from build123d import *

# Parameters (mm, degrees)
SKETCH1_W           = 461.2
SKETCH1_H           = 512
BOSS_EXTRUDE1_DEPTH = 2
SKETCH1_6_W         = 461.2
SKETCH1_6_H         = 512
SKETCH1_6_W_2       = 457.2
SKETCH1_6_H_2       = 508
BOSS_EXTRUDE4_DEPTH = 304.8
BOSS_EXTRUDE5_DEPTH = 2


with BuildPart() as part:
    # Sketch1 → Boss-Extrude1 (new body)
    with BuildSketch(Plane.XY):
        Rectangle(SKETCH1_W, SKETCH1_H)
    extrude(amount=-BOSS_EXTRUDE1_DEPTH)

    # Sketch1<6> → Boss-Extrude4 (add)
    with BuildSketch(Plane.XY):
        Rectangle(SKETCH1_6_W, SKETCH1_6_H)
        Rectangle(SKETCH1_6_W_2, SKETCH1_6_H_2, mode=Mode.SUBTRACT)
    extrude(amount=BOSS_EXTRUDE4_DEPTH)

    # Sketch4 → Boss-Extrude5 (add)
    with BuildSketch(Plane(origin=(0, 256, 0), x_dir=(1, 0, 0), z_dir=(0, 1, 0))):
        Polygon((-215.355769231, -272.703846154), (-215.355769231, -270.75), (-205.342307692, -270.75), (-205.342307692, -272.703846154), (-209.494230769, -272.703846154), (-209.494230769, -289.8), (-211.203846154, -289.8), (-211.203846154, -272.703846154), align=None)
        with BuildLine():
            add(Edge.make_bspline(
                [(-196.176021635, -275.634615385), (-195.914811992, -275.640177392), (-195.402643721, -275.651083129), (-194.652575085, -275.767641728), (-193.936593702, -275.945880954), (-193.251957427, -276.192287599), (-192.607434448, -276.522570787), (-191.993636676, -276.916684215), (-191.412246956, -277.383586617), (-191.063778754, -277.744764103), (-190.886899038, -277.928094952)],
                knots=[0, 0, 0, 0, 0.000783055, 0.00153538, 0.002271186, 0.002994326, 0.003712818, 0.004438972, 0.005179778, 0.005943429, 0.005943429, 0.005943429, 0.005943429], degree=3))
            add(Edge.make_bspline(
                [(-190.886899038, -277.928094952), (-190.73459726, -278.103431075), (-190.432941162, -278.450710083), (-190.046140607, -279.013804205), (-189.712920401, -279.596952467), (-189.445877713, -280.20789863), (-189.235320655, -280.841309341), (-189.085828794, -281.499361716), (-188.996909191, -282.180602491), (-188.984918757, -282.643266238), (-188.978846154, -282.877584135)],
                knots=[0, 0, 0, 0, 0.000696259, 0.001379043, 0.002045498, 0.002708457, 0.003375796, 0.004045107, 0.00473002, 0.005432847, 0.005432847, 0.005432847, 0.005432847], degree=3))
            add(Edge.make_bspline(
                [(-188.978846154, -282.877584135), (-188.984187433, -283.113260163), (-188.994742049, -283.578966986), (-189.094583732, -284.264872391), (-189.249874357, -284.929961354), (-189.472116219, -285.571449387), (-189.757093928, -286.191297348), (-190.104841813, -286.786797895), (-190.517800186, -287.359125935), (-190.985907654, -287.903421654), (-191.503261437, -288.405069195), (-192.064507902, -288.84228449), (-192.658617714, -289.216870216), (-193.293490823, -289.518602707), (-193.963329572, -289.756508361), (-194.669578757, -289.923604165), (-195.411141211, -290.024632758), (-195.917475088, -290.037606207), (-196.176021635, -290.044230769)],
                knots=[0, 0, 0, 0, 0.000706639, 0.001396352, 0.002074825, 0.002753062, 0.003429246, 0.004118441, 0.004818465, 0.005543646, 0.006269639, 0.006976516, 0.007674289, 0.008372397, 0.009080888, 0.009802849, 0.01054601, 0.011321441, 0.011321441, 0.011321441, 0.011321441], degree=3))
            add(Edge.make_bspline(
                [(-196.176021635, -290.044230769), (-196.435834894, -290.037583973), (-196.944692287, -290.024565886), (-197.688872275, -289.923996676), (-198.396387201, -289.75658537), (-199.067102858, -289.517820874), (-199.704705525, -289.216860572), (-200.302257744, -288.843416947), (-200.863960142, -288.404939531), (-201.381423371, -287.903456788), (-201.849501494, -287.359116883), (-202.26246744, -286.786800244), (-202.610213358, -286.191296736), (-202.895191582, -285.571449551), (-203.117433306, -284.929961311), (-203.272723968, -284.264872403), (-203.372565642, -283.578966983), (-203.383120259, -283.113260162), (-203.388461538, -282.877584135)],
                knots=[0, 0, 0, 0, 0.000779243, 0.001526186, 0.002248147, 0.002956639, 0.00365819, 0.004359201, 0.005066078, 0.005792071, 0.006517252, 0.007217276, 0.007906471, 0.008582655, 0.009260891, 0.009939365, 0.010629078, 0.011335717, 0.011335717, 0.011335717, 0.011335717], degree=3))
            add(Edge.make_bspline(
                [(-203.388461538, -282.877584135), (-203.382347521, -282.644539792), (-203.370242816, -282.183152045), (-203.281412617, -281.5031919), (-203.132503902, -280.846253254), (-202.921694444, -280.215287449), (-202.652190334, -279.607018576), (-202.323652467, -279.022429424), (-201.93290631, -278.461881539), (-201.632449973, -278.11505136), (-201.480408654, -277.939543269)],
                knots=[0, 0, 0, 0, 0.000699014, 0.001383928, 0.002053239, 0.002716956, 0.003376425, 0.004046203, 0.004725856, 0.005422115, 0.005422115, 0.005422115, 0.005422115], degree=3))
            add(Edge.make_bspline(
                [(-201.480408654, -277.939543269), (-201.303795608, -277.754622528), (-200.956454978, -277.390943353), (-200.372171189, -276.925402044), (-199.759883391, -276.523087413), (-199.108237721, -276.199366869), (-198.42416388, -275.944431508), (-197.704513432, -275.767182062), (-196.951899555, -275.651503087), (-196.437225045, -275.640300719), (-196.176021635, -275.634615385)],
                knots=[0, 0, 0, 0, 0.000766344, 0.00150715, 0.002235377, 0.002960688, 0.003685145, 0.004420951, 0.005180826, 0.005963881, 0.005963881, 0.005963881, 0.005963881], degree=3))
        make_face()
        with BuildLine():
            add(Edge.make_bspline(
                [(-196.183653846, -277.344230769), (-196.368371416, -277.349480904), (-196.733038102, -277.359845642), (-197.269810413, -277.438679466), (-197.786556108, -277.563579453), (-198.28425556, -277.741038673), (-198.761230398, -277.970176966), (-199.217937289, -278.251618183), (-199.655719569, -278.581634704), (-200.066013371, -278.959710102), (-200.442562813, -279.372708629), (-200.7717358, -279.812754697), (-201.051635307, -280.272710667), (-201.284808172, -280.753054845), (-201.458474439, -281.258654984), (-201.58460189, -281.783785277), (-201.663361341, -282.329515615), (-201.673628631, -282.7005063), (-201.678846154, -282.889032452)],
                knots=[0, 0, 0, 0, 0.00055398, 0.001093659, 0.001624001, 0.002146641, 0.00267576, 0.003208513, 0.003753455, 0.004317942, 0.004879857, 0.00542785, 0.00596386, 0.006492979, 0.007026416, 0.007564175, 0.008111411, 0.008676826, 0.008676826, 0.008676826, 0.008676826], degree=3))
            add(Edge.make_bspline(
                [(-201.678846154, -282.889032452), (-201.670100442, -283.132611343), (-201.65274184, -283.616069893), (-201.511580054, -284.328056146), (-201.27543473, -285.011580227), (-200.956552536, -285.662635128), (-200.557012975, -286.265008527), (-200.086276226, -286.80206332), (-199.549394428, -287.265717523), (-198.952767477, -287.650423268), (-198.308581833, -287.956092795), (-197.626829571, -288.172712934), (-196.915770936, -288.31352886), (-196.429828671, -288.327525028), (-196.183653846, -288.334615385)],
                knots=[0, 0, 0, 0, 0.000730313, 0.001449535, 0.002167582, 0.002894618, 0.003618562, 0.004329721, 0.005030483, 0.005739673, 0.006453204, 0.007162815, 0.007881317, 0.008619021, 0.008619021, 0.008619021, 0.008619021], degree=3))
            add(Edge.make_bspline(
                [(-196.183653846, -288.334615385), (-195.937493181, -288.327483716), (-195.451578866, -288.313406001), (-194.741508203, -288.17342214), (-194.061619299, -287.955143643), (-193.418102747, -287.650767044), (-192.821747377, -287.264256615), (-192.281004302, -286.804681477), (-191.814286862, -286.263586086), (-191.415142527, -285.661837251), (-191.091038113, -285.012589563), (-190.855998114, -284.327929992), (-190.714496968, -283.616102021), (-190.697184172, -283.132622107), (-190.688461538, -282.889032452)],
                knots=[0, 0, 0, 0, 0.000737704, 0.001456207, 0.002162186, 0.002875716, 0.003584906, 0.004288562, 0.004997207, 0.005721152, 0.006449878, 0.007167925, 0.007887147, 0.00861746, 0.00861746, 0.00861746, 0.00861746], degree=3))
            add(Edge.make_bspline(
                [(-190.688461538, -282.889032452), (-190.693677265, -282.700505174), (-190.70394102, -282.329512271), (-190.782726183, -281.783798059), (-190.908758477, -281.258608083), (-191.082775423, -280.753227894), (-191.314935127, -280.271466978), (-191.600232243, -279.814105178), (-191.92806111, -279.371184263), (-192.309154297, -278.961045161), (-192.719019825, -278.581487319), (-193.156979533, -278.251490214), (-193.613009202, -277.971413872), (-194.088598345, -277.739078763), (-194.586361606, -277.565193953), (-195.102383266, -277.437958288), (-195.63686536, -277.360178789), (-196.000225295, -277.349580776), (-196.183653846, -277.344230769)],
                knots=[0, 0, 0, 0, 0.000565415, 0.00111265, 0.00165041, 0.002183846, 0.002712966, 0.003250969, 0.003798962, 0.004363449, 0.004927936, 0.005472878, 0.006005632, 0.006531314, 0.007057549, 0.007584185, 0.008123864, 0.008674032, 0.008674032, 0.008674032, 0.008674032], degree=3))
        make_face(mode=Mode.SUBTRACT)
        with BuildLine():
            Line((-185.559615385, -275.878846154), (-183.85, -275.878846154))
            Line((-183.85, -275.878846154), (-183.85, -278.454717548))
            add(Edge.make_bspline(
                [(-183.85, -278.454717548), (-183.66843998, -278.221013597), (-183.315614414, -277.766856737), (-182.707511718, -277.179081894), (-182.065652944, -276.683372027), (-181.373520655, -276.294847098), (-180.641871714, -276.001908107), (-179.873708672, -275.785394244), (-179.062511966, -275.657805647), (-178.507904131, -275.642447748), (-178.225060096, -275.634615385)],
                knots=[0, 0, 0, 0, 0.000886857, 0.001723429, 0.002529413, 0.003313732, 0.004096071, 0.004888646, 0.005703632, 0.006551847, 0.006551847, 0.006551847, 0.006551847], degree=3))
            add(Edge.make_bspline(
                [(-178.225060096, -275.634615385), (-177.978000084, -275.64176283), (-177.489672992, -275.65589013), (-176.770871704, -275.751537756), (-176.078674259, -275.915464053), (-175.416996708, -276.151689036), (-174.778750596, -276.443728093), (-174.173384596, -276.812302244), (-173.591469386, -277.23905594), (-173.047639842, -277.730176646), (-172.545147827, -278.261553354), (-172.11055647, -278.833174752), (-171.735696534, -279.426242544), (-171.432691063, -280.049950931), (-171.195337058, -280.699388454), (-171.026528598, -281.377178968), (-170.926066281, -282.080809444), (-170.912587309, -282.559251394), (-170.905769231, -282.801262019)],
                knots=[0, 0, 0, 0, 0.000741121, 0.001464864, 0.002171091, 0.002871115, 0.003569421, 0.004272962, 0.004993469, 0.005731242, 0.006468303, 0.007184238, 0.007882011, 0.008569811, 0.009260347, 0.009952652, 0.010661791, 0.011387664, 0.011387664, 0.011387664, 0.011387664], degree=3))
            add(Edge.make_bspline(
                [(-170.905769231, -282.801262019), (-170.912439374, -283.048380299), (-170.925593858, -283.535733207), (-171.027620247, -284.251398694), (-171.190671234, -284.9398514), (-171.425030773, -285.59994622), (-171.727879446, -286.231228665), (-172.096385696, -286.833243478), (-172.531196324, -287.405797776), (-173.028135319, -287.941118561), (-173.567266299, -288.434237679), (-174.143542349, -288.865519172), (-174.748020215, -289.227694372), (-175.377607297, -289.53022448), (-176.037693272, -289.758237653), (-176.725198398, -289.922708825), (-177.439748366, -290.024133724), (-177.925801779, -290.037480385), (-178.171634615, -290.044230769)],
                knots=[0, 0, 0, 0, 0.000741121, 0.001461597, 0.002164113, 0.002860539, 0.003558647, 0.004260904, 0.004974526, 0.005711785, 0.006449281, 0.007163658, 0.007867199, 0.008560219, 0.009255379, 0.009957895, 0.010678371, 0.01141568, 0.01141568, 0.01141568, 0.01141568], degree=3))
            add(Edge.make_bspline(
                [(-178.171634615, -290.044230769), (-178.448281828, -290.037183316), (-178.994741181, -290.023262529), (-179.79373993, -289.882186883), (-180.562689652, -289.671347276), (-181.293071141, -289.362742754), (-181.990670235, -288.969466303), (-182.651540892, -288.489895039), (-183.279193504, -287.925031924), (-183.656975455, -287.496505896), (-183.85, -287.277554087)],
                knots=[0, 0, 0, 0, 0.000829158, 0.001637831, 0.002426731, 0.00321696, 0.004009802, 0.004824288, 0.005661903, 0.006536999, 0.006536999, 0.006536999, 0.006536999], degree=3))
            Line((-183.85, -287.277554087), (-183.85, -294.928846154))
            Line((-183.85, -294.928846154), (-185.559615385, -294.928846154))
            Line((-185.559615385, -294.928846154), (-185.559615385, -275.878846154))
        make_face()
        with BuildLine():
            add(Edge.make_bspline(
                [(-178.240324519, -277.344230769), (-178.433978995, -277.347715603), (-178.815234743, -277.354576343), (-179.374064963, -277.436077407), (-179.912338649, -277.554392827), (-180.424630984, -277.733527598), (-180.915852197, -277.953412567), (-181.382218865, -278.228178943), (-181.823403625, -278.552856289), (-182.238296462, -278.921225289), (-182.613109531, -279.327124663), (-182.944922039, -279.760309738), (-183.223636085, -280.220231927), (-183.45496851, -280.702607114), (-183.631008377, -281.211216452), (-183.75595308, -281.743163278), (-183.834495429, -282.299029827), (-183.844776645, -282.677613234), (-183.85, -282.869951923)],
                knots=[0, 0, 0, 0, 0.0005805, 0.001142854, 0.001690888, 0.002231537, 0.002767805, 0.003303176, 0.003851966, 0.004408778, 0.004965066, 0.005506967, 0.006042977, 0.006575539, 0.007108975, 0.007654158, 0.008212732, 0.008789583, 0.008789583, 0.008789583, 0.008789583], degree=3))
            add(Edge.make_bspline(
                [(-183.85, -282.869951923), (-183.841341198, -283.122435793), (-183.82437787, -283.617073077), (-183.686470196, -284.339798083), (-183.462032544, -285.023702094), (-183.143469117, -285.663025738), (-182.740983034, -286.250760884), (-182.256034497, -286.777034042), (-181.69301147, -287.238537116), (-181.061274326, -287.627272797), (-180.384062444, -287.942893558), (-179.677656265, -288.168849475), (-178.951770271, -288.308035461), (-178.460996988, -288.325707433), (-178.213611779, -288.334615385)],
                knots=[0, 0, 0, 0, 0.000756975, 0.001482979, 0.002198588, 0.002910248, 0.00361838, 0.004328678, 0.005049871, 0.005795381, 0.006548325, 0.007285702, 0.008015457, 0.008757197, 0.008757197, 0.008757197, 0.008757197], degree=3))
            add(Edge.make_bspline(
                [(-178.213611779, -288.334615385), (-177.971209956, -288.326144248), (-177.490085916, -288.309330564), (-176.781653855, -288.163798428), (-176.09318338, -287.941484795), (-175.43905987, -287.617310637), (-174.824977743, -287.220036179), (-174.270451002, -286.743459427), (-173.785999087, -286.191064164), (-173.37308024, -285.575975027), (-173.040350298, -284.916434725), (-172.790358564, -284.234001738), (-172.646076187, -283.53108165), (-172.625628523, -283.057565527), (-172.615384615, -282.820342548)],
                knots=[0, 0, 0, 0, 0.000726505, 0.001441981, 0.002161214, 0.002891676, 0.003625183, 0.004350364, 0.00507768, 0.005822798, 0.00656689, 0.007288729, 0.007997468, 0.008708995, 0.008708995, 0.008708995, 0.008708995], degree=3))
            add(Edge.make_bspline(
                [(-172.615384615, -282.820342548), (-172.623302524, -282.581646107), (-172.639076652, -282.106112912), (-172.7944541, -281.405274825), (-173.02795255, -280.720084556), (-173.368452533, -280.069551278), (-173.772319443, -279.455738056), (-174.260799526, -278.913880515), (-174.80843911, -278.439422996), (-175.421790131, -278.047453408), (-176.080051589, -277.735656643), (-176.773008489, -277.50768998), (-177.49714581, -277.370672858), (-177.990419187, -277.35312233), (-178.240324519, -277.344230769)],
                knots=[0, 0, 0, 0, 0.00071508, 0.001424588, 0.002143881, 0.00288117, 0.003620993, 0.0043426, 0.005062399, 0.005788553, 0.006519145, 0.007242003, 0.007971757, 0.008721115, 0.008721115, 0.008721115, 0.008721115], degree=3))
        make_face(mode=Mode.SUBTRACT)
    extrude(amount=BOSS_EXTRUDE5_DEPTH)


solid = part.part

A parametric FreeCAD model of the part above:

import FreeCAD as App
import Part
import Sketcher
Q = App.Units.Quantity


def add_polygon(sketch, points):
    """Adds a closed chain of lines whose ends are joined by coincident constraints."""
    first, n = sketch.GeometryCount, len(points)
    for a, b in zip(points, points[1:] + points[:1]):
        sketch.addGeometry(Part.LineSegment(App.Vector(*a, 0), App.Vector(*b, 0)), False)
    for i in range(n):
        sketch.addConstraint(Sketcher.Constraint("Coincident", first + i, 2, first + (i + 1) % n, 1))

doc = App.newDocument("Part")
body = doc.addObject("PartDesign::Body", "Body")

# Sketch on XY plane
sketch1 = body.newObject("Sketcher::SketchObject", "Sketch")
sketch1.AttachmentSupport = (doc.getObject("XY_Plane"), [""])
sketch1.MapMode = "FlatFace"
add_polygon(sketch1, [(-231, 256), (-231, -256), (231, -256), (231, 256)])  # lines 0-3
sketch1.addConstraint(Sketcher.Constraint("Vertical", 0))
sketch1.addConstraint(Sketcher.Constraint("Horizontal", 1))
sketch1.addConstraint(Sketcher.Constraint("Vertical", 2))
sketch1.addConstraint(Sketcher.Constraint("Horizontal", 3))
sketch1.addConstraint(Sketcher.Constraint("Symmetric", 0, 2, 2, 2, -1, 1))
sketch1.addConstraint(Sketcher.Constraint("DistanceX", 1, 1, 1, 2, 461.2))
sketch1.addConstraint(Sketcher.Constraint("DistanceY", 0, 2, 0, 1, 512.0))
pad1 = body.newObject("PartDesign::Pad", "Pad")
pad1.Profile = sketch1
pad1.Length = 2
pad1.Reversed = True

# Sketch on XY plane
sketch2 = body.newObject("Sketcher::SketchObject", "Sketch001")
sketch2.AttachmentSupport = (doc.getObject("XY_Plane"), [""])
sketch2.MapMode = "FlatFace"
add_polygon(sketch2, [(-231, 256), (-231, -256), (231, -256), (231, 256)])  # lines 0-3
add_polygon(sketch2, [(229, -254), (-229, -254), (-229, 254), (229, 254)])  # lines 4-7
sketch2.addConstraint(Sketcher.Constraint("Vertical", 0))
sketch2.addConstraint(Sketcher.Constraint("Horizontal", 1))
sketch2.addConstraint(Sketcher.Constraint("Vertical", 2))
sketch2.addConstraint(Sketcher.Constraint("Horizontal", 3))
sketch2.addConstraint(Sketcher.Constraint("Horizontal", 4))
sketch2.addConstraint(Sketcher.Constraint("Vertical", 5))
sketch2.addConstraint(Sketcher.Constraint("Horizontal", 6))
sketch2.addConstraint(Sketcher.Constraint("Vertical", 7))
sketch2.addConstraint(Sketcher.Constraint("Symmetric", 0, 2, 2, 2, -1, 1))
sketch2.addConstraint(Sketcher.Constraint("Symmetric", 4, 2, 6, 2, -1, 1))
sketch2.addConstraint(Sketcher.Constraint("DistanceX", 4, 2, 4, 1, Q("18 in")))
sketch2.addConstraint(Sketcher.Constraint("DistanceY", 5, 1, 5, 2, Q("20 in")))
sketch2.addConstraint(Sketcher.Constraint("DistanceX", 1, 1, 1, 2, 461.2))
sketch2.addConstraint(Sketcher.Constraint("DistanceY", 0, 2, 0, 1, 512.0))
pad2 = body.newObject("PartDesign::Pad", "Pad001")
pad2.Profile = sketch2
pad2.Length = Q("12 in")

# Sketch on XZ plane
sketch3 = body.newObject("Sketcher::SketchObject", "Sketch002")
sketch3.AttachmentSupport = (doc.getObject("XZ_Plane"), [""])
sketch3.MapMode = "FlatFace"
sketch3.AttachmentOffset = App.Placement(App.Vector(0, 0, -256), App.Rotation())
add_polygon(sketch3, [(-215.355769, 270.75), (-215.355769, 272.703846), (-211.203846, 272.703846), (-211.203846, 289.8), (-209.494231, 289.8), (-209.494231, 272.703846), (-205.342308, 272.703846), (-205.342308, 270.75)])  # lines 0-7
sketch3.addGeometry(Part.BSplineCurve([App.Vector(-196.176022, 275.634615, 0), App.Vector(-195.914812, 275.640177, 0), App.Vector(-195.402644, 275.651083, 0), App.Vector(-194.652575, 275.767642, 0), App.Vector(-193.936594, 275.945881, 0), App.Vector(-193.251957, 276.192288, 0), App.Vector(-192.607434, 276.522571, 0), App.Vector(-191.993637, 276.916684, 0), App.Vector(-191.412247, 277.383587, 0), App.Vector(-191.063779, 277.744764, 0), App.Vector(-190.886899, 277.928095, 0)], [4, 1, 1, 1, 1, 1, 1, 1, 4], [0, 0.000783055, 0.00153538, 0.002271186, 0.002994326, 0.003712818, 0.004438972, 0.005179778, 0.005943429], False, 3, [1, 1, 1, 1, 1, 1, 1, 1, 1, 1, 1], False), False)  # 8
sketch3.addGeometry(Part.BSplineCurve([App.Vector(-201.480409, 277.939543, 0), App.Vector(-201.303796, 277.754623, 0), App.Vector(-200.956455, 277.390943, 0), App.Vector(-200.372171, 276.925402, 0), App.Vector(-199.759883, 276.523087, 0), App.Vector(-199.108238, 276.199367, 0), App.Vector(-198.424164, 275.944432, 0), App.Vector(-197.704513, 275.767182, 0), App.Vector(-196.9519, 275.651503, 0), App.Vector(-196.437225, 275.640301, 0), App.Vector(-196.176022, 275.634615, 0)], [4, 1, 1, 1, 1, 1, 1, 1, 4], [0, 0.000766344, 0.00150715, 0.002235377, 0.002960688, 0.003685145, 0.004420951, 0.005180826, 0.005963881], False, 3, [1, 1, 1, 1, 1, 1, 1, 1, 1, 1, 1], False), False)  # 9
sketch3.addGeometry(Part.BSplineCurve([App.Vector(-203.388462, 282.877584, 0), App.Vector(-203.382348, 282.64454, 0), App.Vector(-203.370243, 282.183152, 0), App.Vector(-203.281413, 281.503192, 0), App.Vector(-203.132504, 280.846253, 0), App.Vector(-202.921694, 280.215287, 0), App.Vector(-202.65219, 279.607019, 0), App.Vector(-202.323652, 279.022429, 0), App.Vector(-201.932906, 278.461882, 0), App.Vector(-201.63245, 278.115051, 0), App.Vector(-201.480409, 277.939543, 0)], [4, 1, 1, 1, 1, 1, 1, 1, 4], [0, 0.000699014, 0.001383928, 0.002053239, 0.002716956, 0.003376425, 0.004046203, 0.004725856, 0.005422115], False, 3, [1, 1, 1, 1, 1, 1, 1, 1, 1, 1, 1], False), False)  # 10
sketch3.addGeometry(Part.BSplineCurve([App.Vector(-196.176022, 290.044231, 0), App.Vector(-196.435835, 290.037584, 0), App.Vector(-196.944692, 290.024566, 0), App.Vector(-197.688872, 289.923997, 0), App.Vector(-198.396387, 289.756585, 0), App.Vector(-199.067103, 289.517821, 0), App.Vector(-199.704706, 289.216861, 0), App.Vector(-200.302258, 288.843417, 0), App.Vector(-200.86396, 288.40494, 0), App.Vector(-201.381423, 287.903457, 0), App.Vector(-201.849501, 287.359117, 0), App.Vector(-202.262467, 286.7868, 0), App.Vector(-202.610213, 286.191297, 0), App.Vector(-202.895192, 285.57145, 0), App.Vector(-203.117433, 284.929961, 0), App.Vector(-203.272724, 284.264872, 0), App.Vector(-203.372566, 283.578967, 0), App.Vector(-203.38312, 283.11326, 0), App.Vector(-203.388462, 282.877584, 0)], [4, 1, 1, 1, 1, 1, 1, 1, 1, 1, 1, 1, 1, 1, 1, 1, 4], [0, 0.000779243, 0.001526186, 0.002248147, 0.002956639, 0.00365819, 0.004359201, 0.005066078, 0.005792071, 0.006517252, 0.007217276, 0.007906471, 0.008582655, 0.009260891, 0.009939365, 0.010629078, 0.011335717], False, 3, [1, 1, 1, 1, 1, 1, 1, 1, 1, 1, 1, 1, 1, 1, 1, 1, 1, 1, 1], False), False)  # 11
sketch3.addGeometry(Part.BSplineCurve([App.Vector(-188.978846, 282.877584, 0), App.Vector(-188.984187, 283.11326, 0), App.Vector(-188.994742, 283.578967, 0), App.Vector(-189.094584, 284.264872, 0), App.Vector(-189.249874, 284.929961, 0), App.Vector(-189.472116, 285.571449, 0), App.Vector(-189.757094, 286.191297, 0), App.Vector(-190.104842, 286.786798, 0), App.Vector(-190.5178, 287.359126, 0), App.Vector(-190.985908, 287.903422, 0), App.Vector(-191.503261, 288.405069, 0), App.Vector(-192.064508, 288.842284, 0), App.Vector(-192.658618, 289.21687, 0), App.Vector(-193.293491, 289.518603, 0), App.Vector(-193.96333, 289.756508, 0), App.Vector(-194.669579, 289.923604, 0), App.Vector(-195.411141, 290.024633, 0), App.Vector(-195.917475, 290.037606, 0), App.Vector(-196.176022, 290.044231, 0)], [4, 1, 1, 1, 1, 1, 1, 1, 1, 1, 1, 1, 1, 1, 1, 1, 4], [0, 0.000706639, 0.001396352, 0.002074825, 0.002753062, 0.003429246, 0.004118441, 0.004818465, 0.005543646, 0.006269639, 0.006976516, 0.007674289, 0.008372397, 0.009080888, 0.009802849, 0.01054601, 0.011321441], False, 3, [1, 1, 1, 1, 1, 1, 1, 1, 1, 1, 1, 1, 1, 1, 1, 1, 1, 1, 1], False), False)  # 12
sketch3.addGeometry(Part.BSplineCurve([App.Vector(-190.886899, 277.928095, 0), App.Vector(-190.734597, 278.103431, 0), App.Vector(-190.432941, 278.45071, 0), App.Vector(-190.046141, 279.013804, 0), App.Vector(-189.71292, 279.596952, 0), App.Vector(-189.445878, 280.207899, 0), App.Vector(-189.235321, 280.841309, 0), App.Vector(-189.085829, 281.499362, 0), App.Vector(-188.996909, 282.180602, 0), App.Vector(-188.984919, 282.643266, 0), App.Vector(-188.978846, 282.877584, 0)], [4, 1, 1, 1, 1, 1, 1, 1, 4], [0, 0.000696259, 0.001379043, 0.002045498, 0.002708457, 0.003375796, 0.004045107, 0.00473002, 0.005432847], False, 3, [1, 1, 1, 1, 1, 1, 1, 1, 1, 1, 1], False), False)  # 13
sketch3.addGeometry(Part.BSplineCurve([App.Vector(-190.688462, 282.889032, 0), App.Vector(-190.693677, 282.700505, 0), App.Vector(-190.703941, 282.329512, 0), App.Vector(-190.782726, 281.783798, 0), App.Vector(-190.908758, 281.258608, 0), App.Vector(-191.082775, 280.753228, 0), App.Vector(-191.314935, 280.271467, 0), App.Vector(-191.600232, 279.814105, 0), App.Vector(-191.928061, 279.371184, 0), App.Vector(-192.309154, 278.961045, 0), App.Vector(-192.71902, 278.581487, 0), App.Vector(-193.15698, 278.25149, 0), App.Vector(-193.613009, 277.971414, 0), App.Vector(-194.088598, 277.739079, 0), App.Vector(-194.586362, 277.565194, 0), App.Vector(-195.102383, 277.437958, 0), App.Vector(-195.636865, 277.360179, 0), App.Vector(-196.000225, 277.349581, 0), App.Vector(-196.183654, 277.344231, 0)], [4, 1, 1, 1, 1, 1, 1, 1, 1, 1, 1, 1, 1, 1, 1, 1, 4], [0, 0.000565415, 0.00111265, 0.00165041, 0.002183846, 0.002712966, 0.003250969, 0.003798962, 0.004363449, 0.004927936, 0.005472878, 0.006005632, 0.006531314, 0.007057549, 0.007584185, 0.008123864, 0.008674032], False, 3, [1, 1, 1, 1, 1, 1, 1, 1, 1, 1, 1, 1, 1, 1, 1, 1, 1, 1, 1], False), False)  # 14
sketch3.addGeometry(Part.BSplineCurve([App.Vector(-196.183654, 288.334615, 0), App.Vector(-195.937493, 288.327484, 0), App.Vector(-195.451579, 288.313406, 0), App.Vector(-194.741508, 288.173422, 0), App.Vector(-194.061619, 287.955144, 0), App.Vector(-193.418103, 287.650767, 0), App.Vector(-192.821747, 287.264257, 0), App.Vector(-192.281004, 286.804681, 0), App.Vector(-191.814287, 286.263586, 0), App.Vector(-191.415143, 285.661837, 0), App.Vector(-191.091038, 285.01259, 0), App.Vector(-190.855998, 284.32793, 0), App.Vector(-190.714497, 283.616102, 0), App.Vector(-190.697184, 283.132622, 0), App.Vector(-190.688462, 282.889032, 0)], [4, 1, 1, 1, 1, 1, 1, 1, 1, 1, 1, 1, 4], [0, 0.000737704, 0.001456207, 0.002162186, 0.002875716, 0.003584906, 0.004288562, 0.004997207, 0.005721152, 0.006449878, 0.007167925, 0.007887147, 0.00861746], False, 3, [1, 1, 1, 1, 1, 1, 1, 1, 1, 1, 1, 1, 1, 1, 1], False), False)  # 15
sketch3.addGeometry(Part.BSplineCurve([App.Vector(-201.678846, 282.889032, 0), App.Vector(-201.6701, 283.132611, 0), App.Vector(-201.652742, 283.61607, 0), App.Vector(-201.51158, 284.328056, 0), App.Vector(-201.275435, 285.01158, 0), App.Vector(-200.956553, 285.662635, 0), App.Vector(-200.557013, 286.265009, 0), App.Vector(-200.086276, 286.802063, 0), App.Vector(-199.549394, 287.265718, 0), App.Vector(-198.952767, 287.650423, 0), App.Vector(-198.308582, 287.956093, 0), App.Vector(-197.62683, 288.172713, 0), App.Vector(-196.915771, 288.313529, 0), App.Vector(-196.429829, 288.327525, 0), App.Vector(-196.183654, 288.334615, 0)], [4, 1, 1, 1, 1, 1, 1, 1, 1, 1, 1, 1, 4], [0, 0.000730313, 0.001449535, 0.002167582, 0.002894618, 0.003618562, 0.004329721, 0.005030483, 0.005739673, 0.006453204, 0.007162815, 0.007881317, 0.008619021], False, 3, [1, 1, 1, 1, 1, 1, 1, 1, 1, 1, 1, 1, 1, 1, 1], False), False)  # 16
sketch3.addGeometry(Part.BSplineCurve([App.Vector(-196.183654, 277.344231, 0), App.Vector(-196.368371, 277.349481, 0), App.Vector(-196.733038, 277.359846, 0), App.Vector(-197.26981, 277.438679, 0), App.Vector(-197.786556, 277.563579, 0), App.Vector(-198.284256, 277.741039, 0), App.Vector(-198.76123, 277.970177, 0), App.Vector(-199.217937, 278.251618, 0), App.Vector(-199.65572, 278.581635, 0), App.Vector(-200.066013, 278.95971, 0), App.Vector(-200.442563, 279.372709, 0), App.Vector(-200.771736, 279.812755, 0), App.Vector(-201.051635, 280.272711, 0), App.Vector(-201.284808, 280.753055, 0), App.Vector(-201.458474, 281.258655, 0), App.Vector(-201.584602, 281.783785, 0), App.Vector(-201.663361, 282.329516, 0), App.Vector(-201.673629, 282.700506, 0), App.Vector(-201.678846, 282.889032, 0)], [4, 1, 1, 1, 1, 1, 1, 1, 1, 1, 1, 1, 1, 1, 1, 1, 4], [0, 0.00055398, 0.001093659, 0.001624001, 0.002146641, 0.00267576, 0.003208513, 0.003753455, 0.004317942, 0.004879857, 0.00542785, 0.00596386, 0.006492979, 0.007026416, 0.007564175, 0.008111411, 0.008676826], False, 3, [1, 1, 1, 1, 1, 1, 1, 1, 1, 1, 1, 1, 1, 1, 1, 1, 1, 1, 1], False), False)  # 17
sketch3.addGeometry(Part.LineSegment(App.Vector(-183.85, 275.878846, 0), App.Vector(-185.559615, 275.878846, 0)), False)  # 18
sketch3.addGeometry(Part.LineSegment(App.Vector(-185.559615, 275.878846, 0), App.Vector(-185.559615, 294.928846, 0)), False)  # 19
sketch3.addGeometry(Part.LineSegment(App.Vector(-185.559615, 294.928846, 0), App.Vector(-183.85, 294.928846, 0)), False)  # 20
sketch3.addGeometry(Part.LineSegment(App.Vector(-183.85, 294.928846, 0), App.Vector(-183.85, 287.277554, 0)), False)  # 21
sketch3.addGeometry(Part.BSplineCurve([App.Vector(-178.171635, 290.044231, 0), App.Vector(-178.448282, 290.037183, 0), App.Vector(-178.994741, 290.023263, 0), App.Vector(-179.79374, 289.882187, 0), App.Vector(-180.56269, 289.671347, 0), App.Vector(-181.293071, 289.362743, 0), App.Vector(-181.99067, 288.969466, 0), App.Vector(-182.651541, 288.489895, 0), App.Vector(-183.279194, 287.925032, 0), App.Vector(-183.656975, 287.496506, 0), App.Vector(-183.85, 287.277554, 0)], [4, 1, 1, 1, 1, 1, 1, 1, 4], [0, 0.000829158, 0.001637831, 0.002426731, 0.00321696, 0.004009802, 0.004824288, 0.005661903, 0.006536999], False, 3, [1, 1, 1, 1, 1, 1, 1, 1, 1, 1, 1], False), False)  # 22
sketch3.addGeometry(Part.BSplineCurve([App.Vector(-170.905769, 282.801262, 0), App.Vector(-170.912439, 283.04838, 0), App.Vector(-170.925594, 283.535733, 0), App.Vector(-171.02762, 284.251399, 0), App.Vector(-171.190671, 284.939851, 0), App.Vector(-171.425031, 285.599946, 0), App.Vector(-171.727879, 286.231229, 0), App.Vector(-172.096386, 286.833243, 0), App.Vector(-172.531196, 287.405798, 0), App.Vector(-173.028135, 287.941119, 0), App.Vector(-173.567266, 288.434238, 0), App.Vector(-174.143542, 288.865519, 0), App.Vector(-174.74802, 289.227694, 0), App.Vector(-175.377607, 289.530224, 0), App.Vector(-176.037693, 289.758238, 0), App.Vector(-176.725198, 289.922709, 0), App.Vector(-177.439748, 290.024134, 0), App.Vector(-177.925802, 290.03748, 0), App.Vector(-178.171635, 290.044231, 0)], [4, 1, 1, 1, 1, 1, 1, 1, 1, 1, 1, 1, 1, 1, 1, 1, 4], [0, 0.000741121, 0.001461597, 0.002164113, 0.002860539, 0.003558647, 0.004260904, 0.004974526, 0.005711785, 0.006449281, 0.007163658, 0.007867199, 0.008560219, 0.009255379, 0.009957895, 0.010678371, 0.01141568], False, 3, [1, 1, 1, 1, 1, 1, 1, 1, 1, 1, 1, 1, 1, 1, 1, 1, 1, 1, 1], False), False)  # 23
sketch3.addGeometry(Part.BSplineCurve([App.Vector(-178.22506, 275.634615, 0), App.Vector(-177.978, 275.641763, 0), App.Vector(-177.489673, 275.65589, 0), App.Vector(-176.770872, 275.751538, 0), App.Vector(-176.078674, 275.915464, 0), App.Vector(-175.416997, 276.151689, 0), App.Vector(-174.778751, 276.443728, 0), App.Vector(-174.173385, 276.812302, 0), App.Vector(-173.591469, 277.239056, 0), App.Vector(-173.04764, 277.730177, 0), App.Vector(-172.545148, 278.261553, 0), App.Vector(-172.110556, 278.833175, 0), App.Vector(-171.735697, 279.426243, 0), App.Vector(-171.432691, 280.049951, 0), App.Vector(-171.195337, 280.699388, 0), App.Vector(-171.026529, 281.377179, 0), App.Vector(-170.926066, 282.080809, 0), App.Vector(-170.912587, 282.559251, 0), App.Vector(-170.905769, 282.801262, 0)], [4, 1, 1, 1, 1, 1, 1, 1, 1, 1, 1, 1, 1, 1, 1, 1, 4], [0, 0.000741121, 0.001464864, 0.002171091, 0.002871115, 0.003569421, 0.004272962, 0.004993469, 0.005731242, 0.006468303, 0.007184238, 0.007882011, 0.008569811, 0.009260347, 0.009952652, 0.010661791, 0.011387664], False, 3, [1, 1, 1, 1, 1, 1, 1, 1, 1, 1, 1, 1, 1, 1, 1, 1, 1, 1, 1], False), False)  # 24
sketch3.addGeometry(Part.BSplineCurve([App.Vector(-183.85, 278.454718, 0), App.Vector(-183.66844, 278.221014, 0), App.Vector(-183.315614, 277.766857, 0), App.Vector(-182.707512, 277.179082, 0), App.Vector(-182.065653, 276.683372, 0), App.Vector(-181.373521, 276.294847, 0), App.Vector(-180.641872, 276.001908, 0), App.Vector(-179.873709, 275.785394, 0), App.Vector(-179.062512, 275.657806, 0), App.Vector(-178.507904, 275.642448, 0), App.Vector(-178.22506, 275.634615, 0)], [4, 1, 1, 1, 1, 1, 1, 1, 4], [0, 0.000886857, 0.001723429, 0.002529413, 0.003313732, 0.004096071, 0.004888646, 0.005703632, 0.006551847], False, 3, [1, 1, 1, 1, 1, 1, 1, 1, 1, 1, 1], False), False)  # 25
sketch3.addGeometry(Part.LineSegment(App.Vector(-183.85, 278.454718, 0), App.Vector(-183.85, 275.878846, 0)), False)  # 26
sketch3.addGeometry(Part.BSplineCurve([App.Vector(-172.615385, 282.820343, 0), App.Vector(-172.623303, 282.581646, 0), App.Vector(-172.639077, 282.106113, 0), App.Vector(-172.794454, 281.405275, 0), App.Vector(-173.027953, 280.720085, 0), App.Vector(-173.368453, 280.069551, 0), App.Vector(-173.772319, 279.455738, 0), App.Vector(-174.2608, 278.913881, 0), App.Vector(-174.808439, 278.439423, 0), App.Vector(-175.42179, 278.047453, 0), App.Vector(-176.080052, 277.735657, 0), App.Vector(-176.773008, 277.50769, 0), App.Vector(-177.497146, 277.370673, 0), App.Vector(-177.990419, 277.353122, 0), App.Vector(-178.240325, 277.344231, 0)], [4, 1, 1, 1, 1, 1, 1, 1, 1, 1, 1, 1, 4], [0, 0.00071508, 0.001424588, 0.002143881, 0.00288117, 0.003620993, 0.0043426, 0.005062399, 0.005788553, 0.006519145, 0.007242003, 0.007971757, 0.008721115], False, 3, [1, 1, 1, 1, 1, 1, 1, 1, 1, 1, 1, 1, 1, 1, 1], False), False)  # 27
sketch3.addGeometry(Part.BSplineCurve([App.Vector(-178.213612, 288.334615, 0), App.Vector(-177.97121, 288.326144, 0), App.Vector(-177.490086, 288.309331, 0), App.Vector(-176.781654, 288.163798, 0), App.Vector(-176.093183, 287.941485, 0), App.Vector(-175.43906, 287.617311, 0), App.Vector(-174.824978, 287.220036, 0), App.Vector(-174.270451, 286.743459, 0), App.Vector(-173.785999, 286.191064, 0), App.Vector(-173.37308, 285.575975, 0), App.Vector(-173.04035, 284.916435, 0), App.Vector(-172.790359, 284.234002, 0), App.Vector(-172.646076, 283.531082, 0), App.Vector(-172.625629, 283.057566, 0), App.Vector(-172.615385, 282.820343, 0)], [4, 1, 1, 1, 1, 1, 1, 1, 1, 1, 1, 1, 4], [0, 0.000726505, 0.001441981, 0.002161214, 0.002891676, 0.003625183, 0.004350364, 0.00507768, 0.005822798, 0.00656689, 0.007288729, 0.007997468, 0.008708995], False, 3, [1, 1, 1, 1, 1, 1, 1, 1, 1, 1, 1, 1, 1, 1, 1], False), False)  # 28
sketch3.addGeometry(Part.BSplineCurve([App.Vector(-183.85, 282.869952, 0), App.Vector(-183.841341, 283.122436, 0), App.Vector(-183.824378, 283.617073, 0), App.Vector(-183.68647, 284.339798, 0), App.Vector(-183.462033, 285.023702, 0), App.Vector(-183.143469, 285.663026, 0), App.Vector(-182.740983, 286.250761, 0), App.Vector(-182.256034, 286.777034, 0), App.Vector(-181.693011, 287.238537, 0), App.Vector(-181.061274, 287.627273, 0), App.Vector(-180.384062, 287.942894, 0), App.Vector(-179.677656, 288.168849, 0), App.Vector(-178.95177, 288.308035, 0), App.Vector(-178.460997, 288.325707, 0), App.Vector(-178.213612, 288.334615, 0)], [4, 1, 1, 1, 1, 1, 1, 1, 1, 1, 1, 1, 4], [0, 0.000756975, 0.001482979, 0.002198588, 0.002910248, 0.00361838, 0.004328678, 0.005049871, 0.005795381, 0.006548325, 0.007285702, 0.008015457, 0.008757197], False, 3, [1, 1, 1, 1, 1, 1, 1, 1, 1, 1, 1, 1, 1, 1, 1], False), False)  # 29
sketch3.addGeometry(Part.BSplineCurve([App.Vector(-178.240325, 277.344231, 0), App.Vector(-178.433979, 277.347716, 0), App.Vector(-178.815235, 277.354576, 0), App.Vector(-179.374065, 277.436077, 0), App.Vector(-179.912339, 277.554393, 0), App.Vector(-180.424631, 277.733528, 0), App.Vector(-180.915852, 277.953413, 0), App.Vector(-181.382219, 278.228179, 0), App.Vector(-181.823404, 278.552856, 0), App.Vector(-182.238296, 278.921225, 0), App.Vector(-182.61311, 279.327125, 0), App.Vector(-182.944922, 279.76031, 0), App.Vector(-183.223636, 280.220232, 0), App.Vector(-183.454969, 280.702607, 0), App.Vector(-183.631008, 281.211216, 0), App.Vector(-183.755953, 281.743163, 0), App.Vector(-183.834495, 282.29903, 0), App.Vector(-183.844777, 282.677613, 0), App.Vector(-183.85, 282.869952, 0)], [4, 1, 1, 1, 1, 1, 1, 1, 1, 1, 1, 1, 1, 1, 1, 1, 4], [0, 0.0005805, 0.001142854, 0.001690888, 0.002231537, 0.002767805, 0.003303176, 0.003851966, 0.004408778, 0.004965066, 0.005506967, 0.006042977, 0.006575539, 0.007108975, 0.007654158, 0.008212732, 0.008789583], False, 3, [1, 1, 1, 1, 1, 1, 1, 1, 1, 1, 1, 1, 1, 1, 1, 1, 1, 1, 1], False), False)  # 30
sketch3.addConstraint(Sketcher.Constraint("Block", 8))
sketch3.addConstraint(Sketcher.Constraint("Block", 9))
sketch3.addConstraint(Sketcher.Constraint("Block", 10))
sketch3.addConstraint(Sketcher.Constraint("Block", 11))
sketch3.addConstraint(Sketcher.Constraint("Block", 12))
sketch3.addConstraint(Sketcher.Constraint("Block", 13))
sketch3.addConstraint(Sketcher.Constraint("Block", 14))
sketch3.addConstraint(Sketcher.Constraint("Block", 15))
sketch3.addConstraint(Sketcher.Constraint("Block", 16))
sketch3.addConstraint(Sketcher.Constraint("Block", 17))
sketch3.addConstraint(Sketcher.Constraint("Block", 22))
sketch3.addConstraint(Sketcher.Constraint("Block", 23))
sketch3.addConstraint(Sketcher.Constraint("Block", 24))
sketch3.addConstraint(Sketcher.Constraint("Block", 25))
sketch3.addConstraint(Sketcher.Constraint("Block", 27))
sketch3.addConstraint(Sketcher.Constraint("Block", 28))
sketch3.addConstraint(Sketcher.Constraint("Block", 29))
sketch3.addConstraint(Sketcher.Constraint("Block", 30))
sketch3.addConstraint(Sketcher.Constraint("Coincident", 18, 2, 19, 1))
sketch3.addConstraint(Sketcher.Constraint("Coincident", 19, 2, 20, 1))
sketch3.addConstraint(Sketcher.Constraint("Coincident", 20, 2, 21, 1))
sketch3.addConstraint(Sketcher.Constraint("Coincident", 21, 2, 22, 2))
sketch3.addConstraint(Sketcher.Constraint("Coincident", 25, 1, 26, 1))
sketch3.addConstraint(Sketcher.Constraint("Coincident", 26, 2, 18, 1))
sketch3.addConstraint(Sketcher.Constraint("Vertical", 0))
sketch3.addConstraint(Sketcher.Constraint("Horizontal", 1))
sketch3.addConstraint(Sketcher.Constraint("Vertical", 2))
sketch3.addConstraint(Sketcher.Constraint("Horizontal", 3))
sketch3.addConstraint(Sketcher.Constraint("Vertical", 4))
sketch3.addConstraint(Sketcher.Constraint("Horizontal", 5))
sketch3.addConstraint(Sketcher.Constraint("Vertical", 6))
sketch3.addConstraint(Sketcher.Constraint("Horizontal", 7))
sketch3.addConstraint(Sketcher.Constraint("Horizontal", 18))
sketch3.addConstraint(Sketcher.Constraint("Vertical", 19))
sketch3.addConstraint(Sketcher.Constraint("Horizontal", 20))
sketch3.addConstraint(Sketcher.Constraint("Vertical", 21))
sketch3.addConstraint(Sketcher.Constraint("Vertical", 26))
sketch3.addConstraint(Sketcher.Constraint("Horizontal", 1, 2, 4, 2))
sketch3.addConstraint(Sketcher.Constraint("Equal", 1, 5))
sketch3.addConstraint(Sketcher.Constraint("Equal", 3, 18))
sketch3.addConstraint(Sketcher.Constraint("DistanceY", 19, 1, 19, 2, Q("0.75 in")))
sketch3.addConstraint(Sketcher.Constraint("DistanceY", 6, 2, 3, 2, Q("0.75 in")))
sketch3.addConstraint(Sketcher.Constraint("DistanceY", 5, 2, 18, 2, Q("0.125 in")))
sketch3.addConstraint(Sketcher.Constraint("DistanceX", 7, 2, 7, 1, 10.013462))
sketch3.addConstraint(Sketcher.Constraint("DistanceY", 26, 2, 26, 1, 2.575871))
sketch3.addConstraint(Sketcher.Constraint("DistanceY", -1, 1, 2, 2, 289.8))
sketch3.addConstraint(Sketcher.Constraint("DistanceX", 1, 1, 1, 2, 4.151923))
sketch3.addConstraint(Sketcher.Constraint("DistanceX", 0, 2, -1, 1, 215.355769))
pad3 = body.newObject("PartDesign::Pad", "Pad002")
pad3.Profile = sketch3
pad3.Length = 2
pad3.Reversed = True

doc.recompute()
